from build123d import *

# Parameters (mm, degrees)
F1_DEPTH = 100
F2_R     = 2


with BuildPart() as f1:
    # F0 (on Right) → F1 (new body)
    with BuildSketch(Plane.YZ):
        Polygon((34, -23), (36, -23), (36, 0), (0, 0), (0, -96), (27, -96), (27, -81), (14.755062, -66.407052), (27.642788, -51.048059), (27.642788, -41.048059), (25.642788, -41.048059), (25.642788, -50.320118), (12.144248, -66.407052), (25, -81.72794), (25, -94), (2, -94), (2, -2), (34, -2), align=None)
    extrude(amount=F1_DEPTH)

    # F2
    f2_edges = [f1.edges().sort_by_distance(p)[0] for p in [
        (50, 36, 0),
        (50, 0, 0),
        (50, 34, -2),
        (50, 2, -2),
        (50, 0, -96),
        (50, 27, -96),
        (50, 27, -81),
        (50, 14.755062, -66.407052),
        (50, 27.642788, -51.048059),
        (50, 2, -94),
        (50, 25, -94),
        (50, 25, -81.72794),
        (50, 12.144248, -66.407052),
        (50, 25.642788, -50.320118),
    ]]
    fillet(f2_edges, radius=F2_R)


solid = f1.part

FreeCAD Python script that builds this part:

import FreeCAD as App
import Part
import Sketcher

V = App.Vector
Q = App.Units.Quantity


def edges_at(feature, points):
    """Names of the edges that pass closest to the given points."""
    edges = feature.Shape.Edges
    near = lambda p: min(range(len(edges)), key=lambda i: edges[i].distToShape(Part.Vertex(*p))[0])
    return sorted({f"Edge{near(p) + 1}" for p in points})

doc = App.newDocument("Part")
body = doc.addObject("PartDesign::Body", "Body")

sketch1 = doc.addObject("Sketcher::SketchObject", "Sketch")
body.addObject(sketch1)
sketch1.AttachmentSupport = (doc.YZ_Plane, [""])
sketch1.MapMode = "FlatFace"
sketch1.addGeometry(Part.LineSegment(V(34, -23, 0), V(36, -23, 0)), False)
sketch1.addGeometry(Part.LineSegment(V(36, -23, 0), V(36, 0, 0)), False)
sketch1.addGeometry(Part.LineSegment(V(36, 0, 0), V(0, 0, 0)), False)
sketch1.addGeometry(Part.LineSegment(V(0, 0, 0), V(0, -96, 0)), False)
sketch1.addGeometry(Part.LineSegment(V(0, -96, 0), V(27, -96, 0)), False)
sketch1.addGeometry(Part.LineSegment(V(27, -96, 0), V(27, -81, 0)), False)
sketch1.addGeometry(Part.LineSegment(V(27, -81, 0), V(14.755062, -66.407052, 0)), False)
sketch1.addGeometry(Part.LineSegment(V(14.755062, -66.407052, 0), V(27.642788, -51.048059, 0)), False)
sketch1.addGeometry(Part.LineSegment(V(27.642788, -51.048059, 0), V(27.642788, -41.048059, 0)), False)
sketch1.addGeometry(Part.LineSegment(V(27.642788, -41.048059, 0), V(25.642788, -41.048059, 0)), False)
sketch1.addGeometry(Part.LineSegment(V(25.642788, -41.048059, 0), V(25.642788, -50.320118, 0)), False)
sketch1.addGeometry(Part.LineSegment(V(25.642788, -50.320118, 0), V(12.144248, -66.407052, 0)), False)
sketch1.addGeometry(Part.LineSegment(V(12.144248, -66.407052, 0), V(25, -81.72794, 0)), False)
sketch1.addGeometry(Part.LineSegment(V(25, -81.72794, 0), V(25, -94, 0)), False)
sketch1.addGeometry(Part.LineSegment(V(25, -94, 0), V(2, -94, 0)), False)
sketch1.addGeometry(Part.LineSegment(V(2, -94, 0), V(2, -2, 0)), False)
sketch1.addGeometry(Part.LineSegment(V(2, -2, 0), V(34, -2, 0)), False)
sketch1.addGeometry(Part.LineSegment(V(34, -2, 0), V(34, -23, 0)), False)
sketch1.addConstraint(Sketcher.Constraint("Coincident", 0, 2, 1, 1))
sketch1.addConstraint(Sketcher.Constraint("Coincident", 1, 2, 2, 1))
sketch1.addConstraint(Sketcher.Constraint("Coincident", 2, 2, 3, 1))
sketch1.addConstraint(Sketcher.Constraint("Coincident", 3, 2, 4, 1))
sketch1.addConstraint(Sketcher.Constraint("Coincident", 4, 2, 5, 1))
sketch1.addConstraint(Sketcher.Constraint("Coincident", 5, 2, 6, 1))
sketch1.addConstraint(Sketcher.Constraint("Coincident", 6, 2, 7, 1))
sketch1.addConstraint(Sketcher.Constraint("Coincident", 7, 2, 8, 1))
sketch1.addConstraint(Sketcher.Constraint("Coincident", 8, 2, 9, 1))
sketch1.addConstraint(Sketcher.Constraint("Coincident", 9, 2, 10, 1))
sketch1.addConstraint(Sketcher.Constraint("Coincident", 10, 2, 11, 1))
sketch1.addConstraint(Sketcher.Constraint("Coincident", 11, 2, 12, 1))
sketch1.addConstraint(Sketcher.Constraint("Coincident", 12, 2, 13, 1))
sketch1.addConstraint(Sketcher.Constraint("Coincident", 13, 2, 14, 1))
sketch1.addConstraint(Sketcher.Constraint("Coincident", 14, 2, 15, 1))
sketch1.addConstraint(Sketcher.Constraint("Coincident", 15, 2, 16, 1))
sketch1.addConstraint(Sketcher.Constraint("Coincident", 16, 2, 17, 1))
sketch1.addConstraint(Sketcher.Constraint("Coincident", 17, 2, 0, 1))
sketch1.addConstraint(Sketcher.Constraint("Horizontal", 0))
sketch1.addConstraint(Sketcher.Constraint("Vertical", 1))
sketch1.addConstraint(Sketcher.Constraint("Horizontal", 2))
sketch1.addConstraint(Sketcher.Constraint("Vertical", 3))
sketch1.addConstraint(Sketcher.Constraint("Horizontal", 4))
sketch1.addConstraint(Sketcher.Constraint("Vertical", 5))
sketch1.addConstraint(Sketcher.Constraint("Vertical", 8))
sketch1.addConstraint(Sketcher.Constraint("Horizontal", 9))
sketch1.addConstraint(Sketcher.Constraint("Vertical", 10))
sketch1.addConstraint(Sketcher.Constraint("Vertical", 13))
sketch1.addConstraint(Sketcher.Constraint("Horizontal", 14))
sketch1.addConstraint(Sketcher.Constraint("Vertical", 15))
sketch1.addConstraint(Sketcher.Constraint("Horizontal", 16))
sketch1.addConstraint(Sketcher.Constraint("Vertical", 17))
sketch1.addConstraint(Sketcher.Constraint("Coincident", 2, 2, -1, 1))
sketch1.addConstraint(Sketcher.Constraint("Parallel", 7, 11))
sketch1.addConstraint(Sketcher.Constraint("Parallel", 6, 12))
sketch1.addConstraint(Sketcher.Constraint("Horizontal", 6, 2, 11, 2))
sketch1.addConstraint(Sketcher.Constraint("Equal", 0, 9))
sketch1.addConstraint(Sketcher.Constraint("Equal", 14, 1))
sketch1.addConstraint(Sketcher.Constraint("DistanceX", 0, 1, 0, 2, 2.0))
sketch1.addConstraint(Sketcher.Constraint("DistanceX", 2, 2, 2, 1, 36.0))
sketch1.addConstraint(Sketcher.Constraint("DistanceX", 4, 1, 4, 2, 27.0))
sketch1.addConstraint(Sketcher.Constraint("DistanceX", 14, 2, 14, 1, 23.0))
sketch1.addConstraint(Sketcher.Constraint("DistanceX", 16, 1, 16, 2, 32.0))
sketch1.addConstraint(Sketcher.Constraint("DistanceY", 3, 2, 3, 1, 96.0))
sketch1.addConstraint(Sketcher.Constraint("DistanceY", 5, 1, 5, 2, 15.0))
sketch1.addConstraint(Sketcher.Constraint("DistanceY", 8, 1, 8, 2, 10.0))
sketch1.addConstraint(Sketcher.Constraint("DistanceY", 15, 1, 15, 2, 92.0))
sketch1.addConstraint(Sketcher.Constraint("DistanceY", 17, 2, 17, 1, 21.0))
sketch1.addConstraint(Sketcher.Constraint("Angle", 6, Q("130.000002 deg")))
sketch1.addConstraint(Sketcher.Constraint("Angle", 7, Q("49.999999 deg")))
sketch1.addConstraint(Sketcher.Constraint("Distance", 11, 21.000001))
sketch1.addConstraint(Sketcher.Constraint("Distance", 12, 19.999999))
sketch1.addConstraint(Sketcher.Constraint("DistanceY", 10, 2, 10, 1, 9.272059))
pad1 = doc.addObject("PartDesign::Pad", "Pad")
body.addObject(pad1)
pad1.Profile = sketch1
pad1.Length = 100
doc.recompute()

fillet = doc.addObject("PartDesign::Fillet", "Fillet")
body.addObject(fillet)
fillet.Base = (pad1, edges_at(pad1, [
    (50, 36, 0),
    (50, 0, 0),
    (50, 34, -2),
    (50, 2, -2),
    (50, 0, -96),
    (50, 27, -96),
    (50, 27, -81),
    (50, 14.755, -66.407),
    (50, 27.643, -51.048),
    (50, 2, -94),
    (50, 25, -94),
    (50, 25, -81.728),
    (50, 12.144, -66.407),
    (50, 25.643, -50.32),
]))
fillet.Radius = 2

doc.recompute()
